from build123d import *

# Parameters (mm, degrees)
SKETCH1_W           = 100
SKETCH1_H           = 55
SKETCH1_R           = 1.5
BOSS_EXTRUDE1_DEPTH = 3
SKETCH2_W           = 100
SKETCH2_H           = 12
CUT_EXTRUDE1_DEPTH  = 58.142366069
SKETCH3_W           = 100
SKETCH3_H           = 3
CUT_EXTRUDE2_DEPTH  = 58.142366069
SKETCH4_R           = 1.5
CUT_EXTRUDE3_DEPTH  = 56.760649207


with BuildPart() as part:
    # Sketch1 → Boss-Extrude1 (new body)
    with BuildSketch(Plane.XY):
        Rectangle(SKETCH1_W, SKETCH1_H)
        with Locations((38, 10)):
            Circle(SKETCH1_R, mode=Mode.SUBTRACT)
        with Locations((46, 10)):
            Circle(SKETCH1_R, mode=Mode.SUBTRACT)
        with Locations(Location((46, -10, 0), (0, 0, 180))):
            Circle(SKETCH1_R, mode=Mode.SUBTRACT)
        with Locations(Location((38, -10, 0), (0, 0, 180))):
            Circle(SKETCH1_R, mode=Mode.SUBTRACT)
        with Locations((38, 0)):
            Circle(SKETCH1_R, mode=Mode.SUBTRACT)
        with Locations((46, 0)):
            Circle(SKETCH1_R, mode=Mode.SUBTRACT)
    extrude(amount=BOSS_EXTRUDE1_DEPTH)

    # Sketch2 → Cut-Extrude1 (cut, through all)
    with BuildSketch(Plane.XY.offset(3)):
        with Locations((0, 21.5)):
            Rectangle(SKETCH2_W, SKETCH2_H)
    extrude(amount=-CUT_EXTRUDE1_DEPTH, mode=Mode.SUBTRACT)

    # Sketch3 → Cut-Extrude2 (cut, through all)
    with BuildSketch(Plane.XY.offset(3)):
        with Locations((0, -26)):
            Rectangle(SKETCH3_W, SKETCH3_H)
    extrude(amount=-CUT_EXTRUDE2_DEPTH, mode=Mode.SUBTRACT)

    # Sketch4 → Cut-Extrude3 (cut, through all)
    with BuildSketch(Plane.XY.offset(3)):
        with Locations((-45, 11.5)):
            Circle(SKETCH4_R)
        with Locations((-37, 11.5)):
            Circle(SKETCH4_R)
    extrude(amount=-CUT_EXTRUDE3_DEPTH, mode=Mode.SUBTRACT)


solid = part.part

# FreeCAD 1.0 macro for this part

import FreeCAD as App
import Part
import Sketcher
from FreeCAD import Vector
Q = App.Units.Quantity


def add_polygon(sketch, points):
    """Adds a closed chain of lines whose ends are joined by coincident constraints."""
    first, n = sketch.GeometryCount, len(points)
    for a, b in zip(points, points[1:] + points[:1]):
        sketch.addGeometry(Part.LineSegment(App.Vector(*a, 0), App.Vector(*b, 0)), False)
    for i in range(n):
        sketch.addConstraint(Sketcher.Constraint("Coincident", first + i, 2, first + (i + 1) % n, 1))

doc = App.newDocument("Part")
body = doc.addObject("PartDesign::Body", "Body")

# Sketch on XY plane
sketch1 = body.newObject("Sketcher::SketchObject", "Sketch")
sketch1.AttachmentSupport = (doc.getObject("XY_Plane"), [""])
sketch1.MapMode = "FlatFace"
add_polygon(sketch1, [(-50, 27.5), (-50, -27.5), (50, -27.5), (50, 27.5)])  # lines 0-3
sketch1.addGeometry(Part.Circle(Vector(38, -10, 0), Vector(0, 0, 1), 1.5), False)  # 4
sketch1.addGeometry(Part.Circle(Vector(46, -10, 0), Vector(0, 0, 1), 1.5), False)  # 5
sketch1.addGeometry(Part.Circle(Vector(38, 0, 0), Vector(0, 0, 1), 1.5), False)  # 6
sketch1.addGeometry(Part.Circle(Vector(38, 10, 0), Vector(0, 0, 1), 1.5), False)  # 7
sketch1.addGeometry(Part.Circle(Vector(46, 0, 0), Vector(0, 0, 1), 1.5), False)  # 8
sketch1.addGeometry(Part.Circle(Vector(46, 10, 0), Vector(0, 0, 1), 1.5), False)  # 9
sketch1.addConstraint(Sketcher.Constraint("Vertical", 0))
sketch1.addConstraint(Sketcher.Constraint("Horizontal", 1))
sketch1.addConstraint(Sketcher.Constraint("Vertical", 2))
sketch1.addConstraint(Sketcher.Constraint("Horizontal", 3))
sketch1.addConstraint(Sketcher.Constraint("Equal", 4, 5))
sketch1.addConstraint(Sketcher.Constraint("Equal", 5, 6))
sketch1.addConstraint(Sketcher.Constraint("Equal", 6, 7))
sketch1.addConstraint(Sketcher.Constraint("Equal", 7, 8))
sketch1.addConstraint(Sketcher.Constraint("Equal", 8, 9))
sketch1.addConstraint(Sketcher.Constraint("Symmetric", 0, 2, 2, 2, -1, 1))
sketch1.addConstraint(Sketcher.Constraint("Symmetric", 4, 3, 7, 3, -1))
sketch1.addConstraint(Sketcher.Constraint("Symmetric", 5, 3, 9, 3, -1))
sketch1.addConstraint(Sketcher.Constraint("PointOnObject", 6, 3, -1))
sketch1.addConstraint(Sketcher.Constraint("PointOnObject", 8, 3, -1))
sketch1.addConstraint(Sketcher.Constraint("Horizontal", 4, 3, 5, 3))
sketch1.addConstraint(Sketcher.Constraint("Vertical", 4, 3, 6, 3))
sketch1.addConstraint(Sketcher.Constraint("Vertical", 5, 3, 8, 3))
sketch1.addConstraint(Sketcher.Constraint("Diameter", 4, Q("3 mm")))
sketch1.addConstraint(Sketcher.Constraint("DistanceX", 1, 1, 1, 2, Q("100 mm")))
sketch1.addConstraint(Sketcher.Constraint("DistanceY", 0, 2, 0, 1, Q("55 mm")))
sketch1.addConstraint(Sketcher.Constraint("DistanceX", -1, 1, 4, 3, Q("38 mm")))
sketch1.addConstraint(Sketcher.Constraint("DistanceY", 4, 3, -1, 1, Q("10 mm")))
sketch1.addConstraint(Sketcher.Constraint("DistanceX", -1, 1, 5, 3, Q("46 mm")))
pad1 = body.newObject("PartDesign::Pad", "Pad")
pad1.Profile = sketch1
pad1.Length = 3

# Sketch on XY plane
sketch2 = body.newObject("Sketcher::SketchObject", "Sketch001")
sketch2.AttachmentSupport = (doc.getObject("XY_Plane"), [""])
sketch2.MapMode = "FlatFace"
sketch2.AttachmentOffset = App.Placement(Vector(0, 0, 3), App.Rotation())
add_polygon(sketch2, [(-50, 28), (-50, 16), (50, 16), (50, 28)])  # lines 0-3
sketch2.addConstraint(Sketcher.Constraint("Vertical", 0))
sketch2.addConstraint(Sketcher.Constraint("Horizontal", 1))
sketch2.addConstraint(Sketcher.Constraint("Vertical", 2))
sketch2.addConstraint(Sketcher.Constraint("Horizontal", 3))
sketch2.addConstraint(Sketcher.Constraint("DistanceX", 1, 1, 1, 2, Q("100 mm")))
sketch2.addConstraint(Sketcher.Constraint("DistanceY", 0, 2, 0, 1, Q("12 mm")))
sketch2.addConstraint(Sketcher.Constraint("DistanceX", 0, 2, -1, 1, Q("50 mm")))
sketch2.addConstraint(Sketcher.Constraint("DistanceY", -1, 1, 0, 2, Q("15.5 mm")))
pocket1 = body.newObject("PartDesign::Pocket", "Pocket")
pocket1.Profile = sketch2
pocket1.Type = "ThroughAll"

# Sketch on XY plane
sketch3 = body.newObject("Sketcher::SketchObject", "Sketch002")
sketch3.AttachmentSupport = (doc.getObject("XY_Plane"), [""])
sketch3.MapMode = "FlatFace"
sketch3.AttachmentOffset = App.Placement(Vector(0, 0, 3), App.Rotation())
add_polygon(sketch3, [(-50, -24.5), (-50, -27.5), (50, -27.5), (50, -24.5)])  # lines 0-3
sketch3.addConstraint(Sketcher.Constraint("Vertical", 0))
sketch3.addConstraint(Sketcher.Constraint("Horizontal", 1))
sketch3.addConstraint(Sketcher.Constraint("Vertical", 2))
sketch3.addConstraint(Sketcher.Constraint("Horizontal", 3))
sketch3.addConstraint(Sketcher.Constraint("DistanceX", 1, 1, 1, 2, Q("100 mm")))
sketch3.addConstraint(Sketcher.Constraint("DistanceY", 0, 2, 0, 1, Q("3 mm")))
sketch3.addConstraint(Sketcher.Constraint("DistanceX", 0, 2, -1, 1, Q("50 mm")))
sketch3.addConstraint(Sketcher.Constraint("DistanceY", 0, 2, -1, 1, Q("27.5 mm")))
pocket2 = body.newObject("PartDesign::Pocket", "Pocket001")
pocket2.Profile = sketch3
pocket2.Type = "ThroughAll"

# Sketch on XY plane
sketch4 = body.newObject("Sketcher::SketchObject", "Sketch003")
sketch4.AttachmentSupport = (doc.getObject("XY_Plane"), [""])
sketch4.MapMode = "FlatFace"
sketch4.AttachmentOffset = App.Placement(Vector(0, 0, 3), App.Rotation())
sketch4.addGeometry(Part.Circle(Vector(-45, 11.5, 0), Vector(0, 0, 1), 1.5), False)
sketch4.addGeometry(Part.Circle(Vector(-37, 11.5, 0), Vector(0, 0, 1), 1.5), False)
sketch4.addConstraint(Sketcher.Constraint("Equal", 0, 1))
sketch4.addConstraint(Sketcher.Constraint("Horizontal", 0, 3, 1, 3))
sketch4.addConstraint(Sketcher.Constraint("Diameter", 0, Q("3 mm")))
sketch4.addConstraint(Sketcher.Constraint("DistanceX", 0, 3, -1, 1, Q("45 mm")))
sketch4.addConstraint(Sketcher.Constraint("DistanceX", 1, 3, -1, 1, Q("37 mm")))
sketch4.addConstraint(Sketcher.Constraint("DistanceY", -1, 1, 0, 3, Q("11.5 mm")))
pocket3 = body.newObject("PartDesign::Pocket", "Pocket002")
pocket3.Profile = sketch4
pocket3.Type = "ThroughAll"

doc.recompute()
